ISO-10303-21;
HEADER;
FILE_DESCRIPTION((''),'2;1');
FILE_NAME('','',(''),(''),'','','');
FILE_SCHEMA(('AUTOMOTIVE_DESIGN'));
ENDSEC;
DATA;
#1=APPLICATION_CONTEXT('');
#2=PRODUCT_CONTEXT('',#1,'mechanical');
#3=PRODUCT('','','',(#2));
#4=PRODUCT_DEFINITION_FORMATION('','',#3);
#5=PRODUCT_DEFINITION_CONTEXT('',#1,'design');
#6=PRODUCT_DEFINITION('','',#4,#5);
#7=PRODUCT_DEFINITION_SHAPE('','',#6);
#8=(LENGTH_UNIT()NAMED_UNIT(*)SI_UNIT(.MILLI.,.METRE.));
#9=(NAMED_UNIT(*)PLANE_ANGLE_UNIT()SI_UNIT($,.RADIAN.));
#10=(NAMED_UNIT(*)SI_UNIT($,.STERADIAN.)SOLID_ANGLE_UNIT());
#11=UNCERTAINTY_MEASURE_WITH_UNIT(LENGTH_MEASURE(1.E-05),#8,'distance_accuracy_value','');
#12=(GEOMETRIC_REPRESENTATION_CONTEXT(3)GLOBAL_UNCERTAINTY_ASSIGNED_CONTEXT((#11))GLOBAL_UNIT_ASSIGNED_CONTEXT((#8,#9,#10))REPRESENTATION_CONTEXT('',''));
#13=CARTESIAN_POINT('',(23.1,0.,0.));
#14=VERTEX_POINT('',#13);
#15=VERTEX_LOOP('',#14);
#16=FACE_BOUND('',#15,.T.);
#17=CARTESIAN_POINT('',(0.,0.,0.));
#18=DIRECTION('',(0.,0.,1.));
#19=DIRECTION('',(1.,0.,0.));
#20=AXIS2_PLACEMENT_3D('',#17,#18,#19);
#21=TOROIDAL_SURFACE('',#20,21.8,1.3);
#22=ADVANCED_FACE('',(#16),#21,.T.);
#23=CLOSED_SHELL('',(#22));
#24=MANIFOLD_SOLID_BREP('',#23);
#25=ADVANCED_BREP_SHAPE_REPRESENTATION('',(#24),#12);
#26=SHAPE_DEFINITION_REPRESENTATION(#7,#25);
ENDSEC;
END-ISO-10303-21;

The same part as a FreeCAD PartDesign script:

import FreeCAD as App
import Part
import Sketcher

V = App.Vector
Q = App.Units.Quantity

doc = App.newDocument("Part")
body = doc.addObject("PartDesign::Body", "Body")

sketch1 = body.newObject("Sketcher::SketchObject", "Sketch")
sketch1.AttachmentSupport = (doc.getObject("YZ_Plane"), [""])
sketch1.MapMode = "FlatFace"
sketch1.addGeometry(Part.Circle(V(21.8, 0, 0), V(0, 0, 1), 1.3), False)
sketch1.addConstraint(Sketcher.Constraint("PointOnObject", 0, 3, -1))
sketch1.addConstraint(Sketcher.Constraint("Diameter", 0, Q("2.6 mm")))
sketch1.addConstraint(Sketcher.Constraint("DistanceX", -1, 1, 0, 3, Q("21.8 mm")))
revolution = body.newObject("PartDesign::Revolution", "Revolution")
revolution.Profile = sketch1
revolution.ReferenceAxis = (sketch1, ["V_Axis"])
revolution.Angle = 360

doc.recompute()
